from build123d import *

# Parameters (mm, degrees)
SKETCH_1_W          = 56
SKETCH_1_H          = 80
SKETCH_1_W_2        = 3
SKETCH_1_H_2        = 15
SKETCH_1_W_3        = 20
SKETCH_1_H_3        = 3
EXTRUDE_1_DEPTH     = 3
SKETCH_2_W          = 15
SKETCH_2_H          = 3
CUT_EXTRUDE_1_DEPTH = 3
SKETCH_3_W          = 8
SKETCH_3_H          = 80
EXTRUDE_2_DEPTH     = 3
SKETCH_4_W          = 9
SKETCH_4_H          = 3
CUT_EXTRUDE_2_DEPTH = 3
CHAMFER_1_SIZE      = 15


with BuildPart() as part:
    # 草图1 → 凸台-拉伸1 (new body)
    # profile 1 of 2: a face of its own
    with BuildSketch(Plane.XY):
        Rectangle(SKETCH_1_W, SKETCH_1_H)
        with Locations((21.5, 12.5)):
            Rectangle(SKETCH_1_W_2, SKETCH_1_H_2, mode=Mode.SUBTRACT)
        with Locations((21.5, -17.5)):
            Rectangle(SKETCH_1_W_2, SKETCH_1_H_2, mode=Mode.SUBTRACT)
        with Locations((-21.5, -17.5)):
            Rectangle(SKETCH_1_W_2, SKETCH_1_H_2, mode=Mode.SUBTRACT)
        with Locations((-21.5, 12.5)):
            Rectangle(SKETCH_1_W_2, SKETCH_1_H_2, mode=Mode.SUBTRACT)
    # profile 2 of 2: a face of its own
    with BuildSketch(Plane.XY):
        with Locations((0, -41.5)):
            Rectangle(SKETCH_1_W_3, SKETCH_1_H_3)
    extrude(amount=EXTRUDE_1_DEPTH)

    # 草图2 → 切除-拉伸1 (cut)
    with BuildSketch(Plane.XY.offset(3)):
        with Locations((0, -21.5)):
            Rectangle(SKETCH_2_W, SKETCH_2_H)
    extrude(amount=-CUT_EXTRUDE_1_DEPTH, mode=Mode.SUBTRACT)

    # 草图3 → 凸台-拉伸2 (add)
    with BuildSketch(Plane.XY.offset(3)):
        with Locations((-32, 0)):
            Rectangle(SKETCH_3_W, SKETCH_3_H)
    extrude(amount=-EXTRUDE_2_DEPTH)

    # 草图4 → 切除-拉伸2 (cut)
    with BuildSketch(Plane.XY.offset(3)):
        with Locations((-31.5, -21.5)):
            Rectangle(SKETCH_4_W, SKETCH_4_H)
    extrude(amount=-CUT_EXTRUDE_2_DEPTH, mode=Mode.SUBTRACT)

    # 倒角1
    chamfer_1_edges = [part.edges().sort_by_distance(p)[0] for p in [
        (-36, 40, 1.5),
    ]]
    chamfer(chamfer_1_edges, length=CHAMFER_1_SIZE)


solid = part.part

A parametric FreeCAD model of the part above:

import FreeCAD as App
import Part
import Sketcher

V = App.Vector


def edges_at(feature, points):
    """Names of the edges that pass closest to the given points."""
    edges = feature.Shape.Edges
    near = lambda p: min(range(len(edges)), key=lambda i: edges[i].distToShape(Part.Vertex(*p))[0])
    return sorted({f"Edge{near(p) + 1}" for p in points})

doc = App.newDocument("Part")
body = doc.addObject("PartDesign::Body", "Body")

sketch1 = body.newObject("Sketcher::SketchObject", "Sketch")
sketch1.AttachmentSupport = (doc.getObject("XY_Plane"), [""])
sketch1.MapMode = "FlatFace"
sketch1.addGeometry([
    Part.LineSegment(V(-28, 40, 0), V(-28, -40, 0)),
    Part.LineSegment(V(-28, -40, 0), V(-10, -40, 0)),
    Part.LineSegment(V(-10, -40, 0), V(-10, -43, 0)),
    Part.LineSegment(V(-10, -43, 0), V(10, -43, 0)),
    Part.LineSegment(V(10, -43, 0), V(10, -40, 0)),
    Part.LineSegment(V(10, -40, 0), V(28, -40, 0)),
    Part.LineSegment(V(28, -40, 0), V(28, 40, 0)),
    Part.LineSegment(V(28, 40, 0), V(-28, 40, 0)),
    Part.LineSegment(V(-20, -25, 0), V(-23, -25, 0)),
    Part.LineSegment(V(-23, -25, 0), V(-23, -10, 0)),
    Part.LineSegment(V(-23, -10, 0), V(-20, -10, 0)),
    Part.LineSegment(V(-20, -10, 0), V(-20, -25, 0)),
    Part.LineSegment(V(23, -25, 0), V(20, -25, 0)),
    Part.LineSegment(V(20, -25, 0), V(20, -10, 0)),
    Part.LineSegment(V(20, -10, 0), V(23, -10, 0)),
    Part.LineSegment(V(23, -10, 0), V(23, -25, 0)),
    Part.LineSegment(V(-20, 5, 0), V(-23, 5, 0)),
    Part.LineSegment(V(-23, 5, 0), V(-23, 20, 0)),
    Part.LineSegment(V(-23, 20, 0), V(-20, 20, 0)),
    Part.LineSegment(V(-20, 20, 0), V(-20, 5, 0)),
    Part.LineSegment(V(23, 5, 0), V(20, 5, 0)),
    Part.LineSegment(V(20, 5, 0), V(20, 20, 0)),
    Part.LineSegment(V(20, 20, 0), V(23, 20, 0)),
    Part.LineSegment(V(23, 20, 0), V(23, 5, 0)),
], False)
sketch1.addConstraint([
    Sketcher.Constraint("Coincident", 0, 2, 1, 1),
    Sketcher.Constraint("Coincident", 1, 2, 2, 1),
    Sketcher.Constraint("Coincident", 2, 2, 3, 1),
    Sketcher.Constraint("Coincident", 3, 2, 4, 1),
    Sketcher.Constraint("Coincident", 4, 2, 5, 1),
    Sketcher.Constraint("Coincident", 5, 2, 6, 1),
    Sketcher.Constraint("Coincident", 6, 2, 7, 1),
    Sketcher.Constraint("Coincident", 7, 2, 0, 1),
    Sketcher.Constraint("Coincident", 8, 2, 9, 1),
    Sketcher.Constraint("Coincident", 9, 2, 10, 1),
    Sketcher.Constraint("Coincident", 10, 2, 11, 1),
    Sketcher.Constraint("Coincident", 11, 2, 8, 1),
    Sketcher.Constraint("Coincident", 12, 2, 13, 1),
    Sketcher.Constraint("Coincident", 13, 2, 14, 1),
    Sketcher.Constraint("Coincident", 14, 2, 15, 1),
    Sketcher.Constraint("Coincident", 15, 2, 12, 1),
    Sketcher.Constraint("Coincident", 16, 2, 17, 1),
    Sketcher.Constraint("Coincident", 17, 2, 18, 1),
    Sketcher.Constraint("Coincident", 18, 2, 19, 1),
    Sketcher.Constraint("Coincident", 19, 2, 16, 1),
    Sketcher.Constraint("Coincident", 20, 2, 21, 1),
    Sketcher.Constraint("Coincident", 21, 2, 22, 1),
    Sketcher.Constraint("Coincident", 22, 2, 23, 1),
    Sketcher.Constraint("Coincident", 23, 2, 20, 1),
    Sketcher.Constraint("Vertical", 0),
    Sketcher.Constraint("Horizontal", 1),
    Sketcher.Constraint("Vertical", 2),
    Sketcher.Constraint("Horizontal", 3),
    Sketcher.Constraint("Vertical", 4),
    Sketcher.Constraint("Horizontal", 5),
    Sketcher.Constraint("Vertical", 6),
    Sketcher.Constraint("Horizontal", 7),
    Sketcher.Constraint("Horizontal", 8),
    Sketcher.Constraint("Vertical", 9),
    Sketcher.Constraint("Horizontal", 10),
    Sketcher.Constraint("Vertical", 11),
    Sketcher.Constraint("Horizontal", 12),
    Sketcher.Constraint("Vertical", 13),
    Sketcher.Constraint("Horizontal", 14),
    Sketcher.Constraint("Vertical", 15),
    Sketcher.Constraint("Horizontal", 16),
    Sketcher.Constraint("Vertical", 17),
    Sketcher.Constraint("Horizontal", 18),
    Sketcher.Constraint("Vertical", 19),
    Sketcher.Constraint("Horizontal", 20),
    Sketcher.Constraint("Vertical", 21),
    Sketcher.Constraint("Horizontal", 22),
    Sketcher.Constraint("Vertical", 23),
    Sketcher.Constraint("Symmetric", 0, 2, 6, 2, -1, 1),
    Sketcher.Constraint("Symmetric", 1, 2, 4, 2, -2),
    Sketcher.Constraint("Symmetric", 11, 2, 12, 2, -2),
    Sketcher.Constraint("Symmetric", 9, 2, 14, 2, -2),
    Sketcher.Constraint("Symmetric", 19, 2, 20, 2, -2),
    Sketcher.Constraint("Symmetric", 17, 2, 22, 2, -2),
    Sketcher.Constraint("Vertical", 9, 2, 16, 2),
    Sketcher.Constraint("Vertical", 11, 2, 18, 2),
    Sketcher.Constraint("Equal", 22, 2),
    Sketcher.Constraint("Equal", 15, 17),
    Sketcher.Constraint("DistanceX", 1, 1, 1, 2, 18.0),
    Sketcher.Constraint("DistanceX", 3, 1, 3, 2, 20.0),
    Sketcher.Constraint("DistanceX", 8, 2, 8, 1, 3.0),
    Sketcher.Constraint("DistanceY", 0, 2, 0, 1, 80.0),
    Sketcher.Constraint("DistanceY", 9, 1, 9, 2, 15.0),
    Sketcher.Constraint("DistanceX", 8, 2, -1, 1, 23.0),
    Sketcher.Constraint("DistanceY", 8, 2, -1, 1, 25.0),
    Sketcher.Constraint("DistanceY", -1, 1, 16, 2, 5.0),
])
pad1 = body.newObject("PartDesign::Pad", "Pad")
pad1.Profile = sketch1
pad1.Length = 3

sketch2 = body.newObject("Sketcher::SketchObject", "Sketch001")
sketch2.AttachmentSupport = (doc.getObject("XY_Plane"), [""])
sketch2.MapMode = "FlatFace"
sketch2.AttachmentOffset = App.Placement(V(0, 0, 3), App.Rotation())
sketch2.addGeometry([
    Part.LineSegment(V(-7.5, -20, 0), V(-7.5, -23, 0)),
    Part.LineSegment(V(-7.5, -23, 0), V(7.5, -23, 0)),
    Part.LineSegment(V(7.5, -23, 0), V(7.5, -20, 0)),
    Part.LineSegment(V(7.5, -20, 0), V(-7.5, -20, 0)),
], False)
sketch2.addConstraint([
    Sketcher.Constraint("Coincident", 0, 2, 1, 1),
    Sketcher.Constraint("Coincident", 1, 2, 2, 1),
    Sketcher.Constraint("Coincident", 2, 2, 3, 1),
    Sketcher.Constraint("Coincident", 3, 2, 0, 1),
    Sketcher.Constraint("Vertical", 0),
    Sketcher.Constraint("Horizontal", 1),
    Sketcher.Constraint("Vertical", 2),
    Sketcher.Constraint("Horizontal", 3),
    Sketcher.Constraint("DistanceX", 1, 1, 1, 2, 15.0),
    Sketcher.Constraint("DistanceY", 0, 2, 0, 1, 3.0),
    Sketcher.Constraint("DistanceY", 0, 2, -1, 1, 23.0),
    Sketcher.Constraint("DistanceX", 0, 2, -1, 1, 7.5),
])
pocket1 = body.newObject("PartDesign::Pocket", "Pocket")
pocket1.Profile = sketch2
pocket1.Length = 3

sketch3 = body.newObject("Sketcher::SketchObject", "Sketch002")
sketch3.AttachmentSupport = (doc.getObject("XY_Plane"), [""])
sketch3.MapMode = "FlatFace"
sketch3.AttachmentOffset = App.Placement(V(0, 0, 3), App.Rotation())
sketch3.addGeometry([
    Part.LineSegment(V(-36, 40, 0), V(-36, -40, 0)),
    Part.LineSegment(V(-36, -40, 0), V(-28, -40, 0)),
    Part.LineSegment(V(-28, -40, 0), V(-28, 40, 0)),
    Part.LineSegment(V(-28, 40, 0), V(-36, 40, 0)),
], False)
sketch3.addConstraint([
    Sketcher.Constraint("Coincident", 0, 2, 1, 1),
    Sketcher.Constraint("Coincident", 1, 2, 2, 1),
    Sketcher.Constraint("Coincident", 2, 2, 3, 1),
    Sketcher.Constraint("Coincident", 3, 2, 0, 1),
    Sketcher.Constraint("Vertical", 0),
    Sketcher.Constraint("Horizontal", 1),
    Sketcher.Constraint("Vertical", 2),
    Sketcher.Constraint("Horizontal", 3),
    Sketcher.Constraint("DistanceX", 1, 1, 1, 2, 8.0),
    Sketcher.Constraint("DistanceY", 0, 2, 0, 1, 80.0),
    Sketcher.Constraint("DistanceX", 0, 2, -1, 1, 36.0),
    Sketcher.Constraint("DistanceY", 0, 2, -1, 1, 40.0),
])
pad2 = body.newObject("PartDesign::Pad", "Pad001")
pad2.Profile = sketch3
pad2.Length = 3
pad2.Reversed = True

sketch4 = body.newObject("Sketcher::SketchObject", "Sketch003")
sketch4.AttachmentSupport = (doc.getObject("XY_Plane"), [""])
sketch4.MapMode = "FlatFace"
sketch4.AttachmentOffset = App.Placement(V(0, 0, 3), App.Rotation())
sketch4.addGeometry([
    Part.LineSegment(V(-36, -20, 0), V(-36, -23, 0)),
    Part.LineSegment(V(-36, -23, 0), V(-27, -23, 0)),
    Part.LineSegment(V(-27, -23, 0), V(-27, -20, 0)),
    Part.LineSegment(V(-27, -20, 0), V(-36, -20, 0)),
], False)
sketch4.addConstraint([
    Sketcher.Constraint("Coincident", 0, 2, 1, 1),
    Sketcher.Constraint("Coincident", 1, 2, 2, 1),
    Sketcher.Constraint("Coincident", 2, 2, 3, 1),
    Sketcher.Constraint("Coincident", 3, 2, 0, 1),
    Sketcher.Constraint("Vertical", 0),
    Sketcher.Constraint("Horizontal", 1),
    Sketcher.Constraint("Vertical", 2),
    Sketcher.Constraint("Horizontal", 3),
    Sketcher.Constraint("DistanceX", 1, 1, 1, 2, 9.0),
    Sketcher.Constraint("DistanceY", 0, 2, 0, 1, 3.0),
    Sketcher.Constraint("DistanceX", 0, 2, -1, 1, 36.0),
    Sketcher.Constraint("DistanceY", 0, 2, -1, 1, 23.0),
])
pocket2 = body.newObject("PartDesign::Pocket", "Pocket001")
pocket2.Profile = sketch4
pocket2.Length = 3
doc.recompute()

chamfer = body.newObject("PartDesign::Chamfer", "Chamfer")
chamfer.Base = (pocket2, edges_at(pocket2, [(-36, 40, 1.5)]))
chamfer.Size = 15

doc.recompute()
